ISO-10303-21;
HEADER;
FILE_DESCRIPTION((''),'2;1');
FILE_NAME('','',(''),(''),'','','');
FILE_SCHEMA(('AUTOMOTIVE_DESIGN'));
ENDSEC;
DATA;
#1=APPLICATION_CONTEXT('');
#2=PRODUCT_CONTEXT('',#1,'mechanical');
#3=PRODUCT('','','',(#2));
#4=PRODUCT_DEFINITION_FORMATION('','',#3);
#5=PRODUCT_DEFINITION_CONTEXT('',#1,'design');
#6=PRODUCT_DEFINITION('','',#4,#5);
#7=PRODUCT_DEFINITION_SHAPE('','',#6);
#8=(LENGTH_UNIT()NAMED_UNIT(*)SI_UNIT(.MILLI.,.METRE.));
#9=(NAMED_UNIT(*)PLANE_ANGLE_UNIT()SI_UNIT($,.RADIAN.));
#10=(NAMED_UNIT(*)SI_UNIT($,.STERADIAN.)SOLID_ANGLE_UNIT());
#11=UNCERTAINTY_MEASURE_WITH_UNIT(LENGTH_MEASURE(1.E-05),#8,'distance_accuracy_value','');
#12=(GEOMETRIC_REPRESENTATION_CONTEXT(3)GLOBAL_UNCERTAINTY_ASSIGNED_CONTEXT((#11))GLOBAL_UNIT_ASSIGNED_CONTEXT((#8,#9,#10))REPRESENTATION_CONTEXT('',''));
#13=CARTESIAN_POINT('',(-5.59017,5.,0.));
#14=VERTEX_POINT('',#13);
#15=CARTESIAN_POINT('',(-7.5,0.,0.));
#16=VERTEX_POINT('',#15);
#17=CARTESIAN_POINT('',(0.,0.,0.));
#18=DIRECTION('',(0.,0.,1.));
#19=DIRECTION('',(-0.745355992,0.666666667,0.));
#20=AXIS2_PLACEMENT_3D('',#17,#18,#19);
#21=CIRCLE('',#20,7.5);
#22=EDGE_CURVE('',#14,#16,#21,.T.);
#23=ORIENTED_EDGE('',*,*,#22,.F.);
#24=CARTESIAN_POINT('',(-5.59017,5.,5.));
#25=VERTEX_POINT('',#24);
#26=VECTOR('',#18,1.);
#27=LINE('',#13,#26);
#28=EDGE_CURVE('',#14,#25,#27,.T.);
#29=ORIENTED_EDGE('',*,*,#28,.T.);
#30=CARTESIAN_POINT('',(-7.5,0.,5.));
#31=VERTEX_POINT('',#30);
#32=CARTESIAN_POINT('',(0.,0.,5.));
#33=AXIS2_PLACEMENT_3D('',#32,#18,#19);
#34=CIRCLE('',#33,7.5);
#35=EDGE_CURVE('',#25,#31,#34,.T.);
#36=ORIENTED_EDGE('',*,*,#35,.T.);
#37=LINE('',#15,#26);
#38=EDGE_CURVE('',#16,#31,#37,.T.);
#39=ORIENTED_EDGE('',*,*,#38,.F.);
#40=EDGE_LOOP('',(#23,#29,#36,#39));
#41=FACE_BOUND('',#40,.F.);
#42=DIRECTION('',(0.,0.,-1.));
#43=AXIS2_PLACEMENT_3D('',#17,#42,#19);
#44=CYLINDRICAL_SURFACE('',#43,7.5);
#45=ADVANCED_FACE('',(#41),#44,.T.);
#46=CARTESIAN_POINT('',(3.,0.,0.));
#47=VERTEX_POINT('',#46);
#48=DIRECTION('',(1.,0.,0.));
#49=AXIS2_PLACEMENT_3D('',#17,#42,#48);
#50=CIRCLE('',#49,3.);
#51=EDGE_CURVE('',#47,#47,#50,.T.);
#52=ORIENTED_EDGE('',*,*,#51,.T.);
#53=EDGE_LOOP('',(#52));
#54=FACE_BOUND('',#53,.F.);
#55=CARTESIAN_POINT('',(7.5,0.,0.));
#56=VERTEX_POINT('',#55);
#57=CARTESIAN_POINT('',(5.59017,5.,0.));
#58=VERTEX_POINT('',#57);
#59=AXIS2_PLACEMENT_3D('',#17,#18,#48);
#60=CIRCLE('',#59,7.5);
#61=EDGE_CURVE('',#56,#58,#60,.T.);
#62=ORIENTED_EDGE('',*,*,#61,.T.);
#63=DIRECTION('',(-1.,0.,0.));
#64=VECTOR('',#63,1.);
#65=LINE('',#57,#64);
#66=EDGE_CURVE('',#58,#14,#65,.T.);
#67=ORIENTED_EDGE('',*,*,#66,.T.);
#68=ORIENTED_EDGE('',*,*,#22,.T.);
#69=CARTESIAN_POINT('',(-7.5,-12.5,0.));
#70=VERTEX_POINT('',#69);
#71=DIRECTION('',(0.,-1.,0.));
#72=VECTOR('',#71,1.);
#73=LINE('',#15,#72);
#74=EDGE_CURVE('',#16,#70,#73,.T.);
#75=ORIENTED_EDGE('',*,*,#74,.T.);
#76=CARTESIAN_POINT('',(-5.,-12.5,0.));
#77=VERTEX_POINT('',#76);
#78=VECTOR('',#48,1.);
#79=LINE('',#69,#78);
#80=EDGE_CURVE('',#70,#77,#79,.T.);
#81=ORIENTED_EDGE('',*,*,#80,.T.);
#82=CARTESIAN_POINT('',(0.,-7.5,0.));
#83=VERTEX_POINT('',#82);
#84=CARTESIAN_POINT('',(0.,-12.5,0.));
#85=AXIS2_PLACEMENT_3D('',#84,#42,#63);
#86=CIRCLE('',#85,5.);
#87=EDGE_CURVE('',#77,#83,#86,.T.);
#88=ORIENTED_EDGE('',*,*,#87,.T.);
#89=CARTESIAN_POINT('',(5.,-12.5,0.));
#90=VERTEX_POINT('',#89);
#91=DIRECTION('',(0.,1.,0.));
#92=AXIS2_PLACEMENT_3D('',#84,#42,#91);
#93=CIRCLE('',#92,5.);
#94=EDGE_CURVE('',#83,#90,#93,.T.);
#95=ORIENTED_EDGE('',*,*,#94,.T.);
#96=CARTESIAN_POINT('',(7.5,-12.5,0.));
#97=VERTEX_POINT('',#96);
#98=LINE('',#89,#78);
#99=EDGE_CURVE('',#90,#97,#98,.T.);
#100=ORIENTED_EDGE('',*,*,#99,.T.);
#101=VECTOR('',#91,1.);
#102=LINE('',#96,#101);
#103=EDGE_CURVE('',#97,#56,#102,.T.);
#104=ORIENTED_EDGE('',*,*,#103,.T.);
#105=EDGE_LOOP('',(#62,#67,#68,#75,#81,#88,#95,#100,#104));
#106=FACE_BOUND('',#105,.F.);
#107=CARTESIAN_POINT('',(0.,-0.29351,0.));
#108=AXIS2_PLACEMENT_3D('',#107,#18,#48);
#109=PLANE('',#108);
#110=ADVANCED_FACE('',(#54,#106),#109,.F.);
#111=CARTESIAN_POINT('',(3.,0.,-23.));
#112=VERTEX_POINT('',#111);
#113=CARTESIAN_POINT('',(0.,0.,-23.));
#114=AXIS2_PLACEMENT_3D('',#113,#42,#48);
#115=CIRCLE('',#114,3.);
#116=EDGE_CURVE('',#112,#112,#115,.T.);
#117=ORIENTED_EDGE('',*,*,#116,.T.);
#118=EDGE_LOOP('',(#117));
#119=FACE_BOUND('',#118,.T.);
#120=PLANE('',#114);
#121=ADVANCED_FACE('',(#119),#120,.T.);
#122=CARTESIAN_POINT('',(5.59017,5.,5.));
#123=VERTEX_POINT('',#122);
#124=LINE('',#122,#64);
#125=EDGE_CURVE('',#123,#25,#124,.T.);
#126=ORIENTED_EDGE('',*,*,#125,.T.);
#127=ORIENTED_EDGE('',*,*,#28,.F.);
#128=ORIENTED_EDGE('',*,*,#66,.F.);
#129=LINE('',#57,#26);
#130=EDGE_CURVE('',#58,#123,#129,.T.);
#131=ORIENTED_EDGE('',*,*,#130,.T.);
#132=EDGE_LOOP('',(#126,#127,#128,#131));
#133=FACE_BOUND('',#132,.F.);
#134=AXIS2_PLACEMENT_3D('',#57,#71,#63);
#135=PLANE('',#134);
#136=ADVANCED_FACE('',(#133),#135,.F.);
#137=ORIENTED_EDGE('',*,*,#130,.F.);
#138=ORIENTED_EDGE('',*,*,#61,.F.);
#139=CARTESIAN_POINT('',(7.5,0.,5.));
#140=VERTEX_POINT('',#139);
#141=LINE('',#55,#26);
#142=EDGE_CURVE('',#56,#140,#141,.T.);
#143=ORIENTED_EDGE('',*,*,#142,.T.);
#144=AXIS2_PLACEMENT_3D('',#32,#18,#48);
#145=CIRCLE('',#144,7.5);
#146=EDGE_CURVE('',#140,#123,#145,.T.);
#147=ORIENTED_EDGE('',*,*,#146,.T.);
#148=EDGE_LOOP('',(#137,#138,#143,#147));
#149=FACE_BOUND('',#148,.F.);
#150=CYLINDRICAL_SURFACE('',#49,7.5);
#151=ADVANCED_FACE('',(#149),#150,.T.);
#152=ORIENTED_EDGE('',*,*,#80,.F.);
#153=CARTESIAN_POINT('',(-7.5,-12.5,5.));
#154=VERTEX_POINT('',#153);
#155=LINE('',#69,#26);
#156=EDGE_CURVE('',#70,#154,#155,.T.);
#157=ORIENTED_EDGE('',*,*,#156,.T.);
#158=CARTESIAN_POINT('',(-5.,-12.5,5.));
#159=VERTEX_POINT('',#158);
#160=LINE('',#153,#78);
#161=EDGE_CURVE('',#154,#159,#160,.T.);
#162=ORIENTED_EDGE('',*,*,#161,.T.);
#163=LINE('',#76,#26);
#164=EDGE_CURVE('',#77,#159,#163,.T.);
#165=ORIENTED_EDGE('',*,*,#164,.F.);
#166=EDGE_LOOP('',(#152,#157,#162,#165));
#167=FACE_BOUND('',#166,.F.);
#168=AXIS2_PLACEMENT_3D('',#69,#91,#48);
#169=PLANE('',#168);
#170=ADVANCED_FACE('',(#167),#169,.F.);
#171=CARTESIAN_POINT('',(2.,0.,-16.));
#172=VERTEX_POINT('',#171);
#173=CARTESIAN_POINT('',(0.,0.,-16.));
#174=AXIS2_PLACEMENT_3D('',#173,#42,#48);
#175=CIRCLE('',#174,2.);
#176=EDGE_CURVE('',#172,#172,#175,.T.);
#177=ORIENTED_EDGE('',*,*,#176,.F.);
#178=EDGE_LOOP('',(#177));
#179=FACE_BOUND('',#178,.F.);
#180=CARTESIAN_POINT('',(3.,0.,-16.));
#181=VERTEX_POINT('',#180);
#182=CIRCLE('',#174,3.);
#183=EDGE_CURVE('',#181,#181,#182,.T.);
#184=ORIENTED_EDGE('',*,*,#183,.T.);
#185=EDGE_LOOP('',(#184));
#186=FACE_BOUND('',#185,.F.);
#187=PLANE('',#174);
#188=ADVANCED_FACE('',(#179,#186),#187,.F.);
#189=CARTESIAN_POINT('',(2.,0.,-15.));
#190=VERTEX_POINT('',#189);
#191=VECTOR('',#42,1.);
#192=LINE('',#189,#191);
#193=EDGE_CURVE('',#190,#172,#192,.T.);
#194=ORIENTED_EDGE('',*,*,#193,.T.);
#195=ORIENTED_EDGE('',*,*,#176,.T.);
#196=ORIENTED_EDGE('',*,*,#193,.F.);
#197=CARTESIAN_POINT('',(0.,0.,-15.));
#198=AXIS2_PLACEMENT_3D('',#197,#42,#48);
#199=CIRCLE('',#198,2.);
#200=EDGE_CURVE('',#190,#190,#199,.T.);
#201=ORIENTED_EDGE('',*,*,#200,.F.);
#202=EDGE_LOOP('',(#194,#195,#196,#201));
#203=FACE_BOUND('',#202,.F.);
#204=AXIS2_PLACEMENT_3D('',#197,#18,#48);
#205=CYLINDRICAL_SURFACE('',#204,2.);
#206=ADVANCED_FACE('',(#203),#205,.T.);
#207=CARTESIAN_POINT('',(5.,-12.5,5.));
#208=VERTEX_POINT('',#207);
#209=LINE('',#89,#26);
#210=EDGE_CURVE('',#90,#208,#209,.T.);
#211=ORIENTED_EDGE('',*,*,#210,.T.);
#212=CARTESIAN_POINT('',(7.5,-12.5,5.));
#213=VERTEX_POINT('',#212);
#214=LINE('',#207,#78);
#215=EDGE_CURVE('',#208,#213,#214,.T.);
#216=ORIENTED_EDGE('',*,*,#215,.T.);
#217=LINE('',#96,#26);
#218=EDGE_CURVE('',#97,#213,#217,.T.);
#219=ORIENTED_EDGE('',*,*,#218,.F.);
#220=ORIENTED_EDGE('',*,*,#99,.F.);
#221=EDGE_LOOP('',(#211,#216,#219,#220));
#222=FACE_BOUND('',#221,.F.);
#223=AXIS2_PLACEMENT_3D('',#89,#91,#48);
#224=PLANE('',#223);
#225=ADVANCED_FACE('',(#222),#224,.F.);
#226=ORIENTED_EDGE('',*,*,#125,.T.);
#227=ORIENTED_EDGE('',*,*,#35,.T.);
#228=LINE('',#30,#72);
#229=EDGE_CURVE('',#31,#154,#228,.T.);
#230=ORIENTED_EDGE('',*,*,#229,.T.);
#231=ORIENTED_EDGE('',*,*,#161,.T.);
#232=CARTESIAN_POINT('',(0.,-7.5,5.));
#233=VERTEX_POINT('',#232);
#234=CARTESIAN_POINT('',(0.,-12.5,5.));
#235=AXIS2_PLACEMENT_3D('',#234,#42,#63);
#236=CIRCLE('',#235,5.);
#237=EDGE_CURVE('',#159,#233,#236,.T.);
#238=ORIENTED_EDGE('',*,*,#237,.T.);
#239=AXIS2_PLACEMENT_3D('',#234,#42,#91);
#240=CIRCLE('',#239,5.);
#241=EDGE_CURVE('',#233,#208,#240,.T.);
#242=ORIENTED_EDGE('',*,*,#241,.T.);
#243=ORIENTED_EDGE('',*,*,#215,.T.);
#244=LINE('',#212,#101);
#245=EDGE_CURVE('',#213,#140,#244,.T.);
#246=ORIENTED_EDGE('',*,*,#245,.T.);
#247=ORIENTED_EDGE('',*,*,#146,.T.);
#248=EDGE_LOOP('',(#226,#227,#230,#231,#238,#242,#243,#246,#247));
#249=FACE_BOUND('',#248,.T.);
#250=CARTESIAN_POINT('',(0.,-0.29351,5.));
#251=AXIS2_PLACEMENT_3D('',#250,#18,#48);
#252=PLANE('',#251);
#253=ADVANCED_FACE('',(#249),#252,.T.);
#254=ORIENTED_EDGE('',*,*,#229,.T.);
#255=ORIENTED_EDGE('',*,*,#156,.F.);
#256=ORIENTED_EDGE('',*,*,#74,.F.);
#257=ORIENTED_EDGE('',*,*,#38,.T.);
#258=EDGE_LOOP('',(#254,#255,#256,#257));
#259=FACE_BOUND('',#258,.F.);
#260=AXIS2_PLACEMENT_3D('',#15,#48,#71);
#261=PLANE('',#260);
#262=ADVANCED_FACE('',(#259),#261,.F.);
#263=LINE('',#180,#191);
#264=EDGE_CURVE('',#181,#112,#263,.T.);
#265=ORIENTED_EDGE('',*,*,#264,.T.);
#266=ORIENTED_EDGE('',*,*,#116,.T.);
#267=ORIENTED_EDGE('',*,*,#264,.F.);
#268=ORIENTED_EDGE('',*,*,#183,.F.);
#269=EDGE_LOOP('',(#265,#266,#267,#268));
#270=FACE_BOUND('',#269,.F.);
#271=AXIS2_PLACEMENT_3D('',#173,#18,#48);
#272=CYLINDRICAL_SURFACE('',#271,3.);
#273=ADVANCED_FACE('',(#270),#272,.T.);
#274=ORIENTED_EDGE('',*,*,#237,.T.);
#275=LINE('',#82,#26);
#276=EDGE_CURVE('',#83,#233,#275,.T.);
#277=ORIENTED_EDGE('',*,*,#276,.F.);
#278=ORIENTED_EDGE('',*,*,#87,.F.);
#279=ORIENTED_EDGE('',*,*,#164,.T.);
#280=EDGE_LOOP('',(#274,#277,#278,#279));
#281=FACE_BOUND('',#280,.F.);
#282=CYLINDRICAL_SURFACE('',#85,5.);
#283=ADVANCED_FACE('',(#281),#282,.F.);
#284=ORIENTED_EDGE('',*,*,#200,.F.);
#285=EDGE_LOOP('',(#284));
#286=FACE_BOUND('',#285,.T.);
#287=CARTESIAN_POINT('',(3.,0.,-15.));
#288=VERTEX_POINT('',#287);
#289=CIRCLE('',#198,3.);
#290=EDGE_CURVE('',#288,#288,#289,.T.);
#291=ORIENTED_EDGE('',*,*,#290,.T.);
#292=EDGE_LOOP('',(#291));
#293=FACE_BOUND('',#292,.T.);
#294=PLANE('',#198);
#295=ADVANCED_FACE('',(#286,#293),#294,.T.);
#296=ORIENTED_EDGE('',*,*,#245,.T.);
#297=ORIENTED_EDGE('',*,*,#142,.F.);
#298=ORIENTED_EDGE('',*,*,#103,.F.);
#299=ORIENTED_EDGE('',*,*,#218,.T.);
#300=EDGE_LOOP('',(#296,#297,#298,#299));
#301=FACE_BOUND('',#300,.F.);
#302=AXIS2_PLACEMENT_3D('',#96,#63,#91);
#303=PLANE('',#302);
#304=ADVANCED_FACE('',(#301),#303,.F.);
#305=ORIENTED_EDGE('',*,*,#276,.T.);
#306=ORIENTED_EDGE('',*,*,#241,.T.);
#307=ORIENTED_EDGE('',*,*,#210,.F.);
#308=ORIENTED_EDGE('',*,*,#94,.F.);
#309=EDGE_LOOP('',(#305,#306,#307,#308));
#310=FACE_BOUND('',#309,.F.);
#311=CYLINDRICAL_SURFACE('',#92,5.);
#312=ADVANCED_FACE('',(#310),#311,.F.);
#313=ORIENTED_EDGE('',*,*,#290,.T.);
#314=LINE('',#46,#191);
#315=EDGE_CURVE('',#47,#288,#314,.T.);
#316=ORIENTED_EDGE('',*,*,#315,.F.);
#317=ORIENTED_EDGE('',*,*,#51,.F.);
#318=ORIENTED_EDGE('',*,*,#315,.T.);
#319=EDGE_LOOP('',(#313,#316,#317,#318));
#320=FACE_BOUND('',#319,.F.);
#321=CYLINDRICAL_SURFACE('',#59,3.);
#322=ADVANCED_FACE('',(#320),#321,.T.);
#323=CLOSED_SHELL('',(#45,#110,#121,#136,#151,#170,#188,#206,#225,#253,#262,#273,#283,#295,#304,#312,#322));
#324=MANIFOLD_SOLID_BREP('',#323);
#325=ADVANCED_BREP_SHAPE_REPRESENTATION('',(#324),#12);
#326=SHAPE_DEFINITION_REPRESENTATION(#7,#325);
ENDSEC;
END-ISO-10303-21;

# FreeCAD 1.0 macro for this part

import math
import FreeCAD as App
import Part
import Sketcher
from FreeCAD import Vector

doc = App.newDocument("Part")
params = doc.addObject("Spreadsheet::Sheet", "Params")
for row, (alias, value) in enumerate([
    ("sketch1_radius", "5 mm"),
    ("sketch1_radius2", "7.5 mm"),
    ("sketch1_height", "12.5 mm"),
    ("pad1_length", "5 mm"),
    ("sketch2_diameter", "6 mm"),
    ("pad2_length", "15 mm"),
    ("sketch3_diameter", "4 mm"),
    ("pad3_length", "1 mm"),
    ("sketch4_diameter", "6 mm"),
    ("pad4_length", "7 mm"),
], start=1):
    params.set(f"A{row}", alias)
    params.set(f"B{row}", "=" + value)
    params.setAlias(f"B{row}", alias)

body = doc.addObject("PartDesign::Body", "Body")

# Sketch on XY plane
sketch1 = doc.addObject("Sketcher::SketchObject", "Sketch")
body.addObject(sketch1)
sketch1.AttachmentSupport = (doc.XY_Plane, [""])
sketch1.MapMode = "FlatFace"
sketch1.addGeometry([
    Part.ArcOfCircle(Part.Circle(Vector(0, 0, 0), Vector(0, 0, 1), 7.5), math.radians(0), math.radians(42)),  # 0
    Part.LineSegment(Vector(5.6, 5, 0), Vector(-5.6, 5, 0)),  # 1
    Part.ArcOfCircle(Part.Circle(Vector(0, 0, 0), Vector(0, 0, 1), 7.5), math.radians(138), math.radians(180)),  # 2
    Part.LineSegment(Vector(-7.5, 0, 0), Vector(-7.5, -12.5, 0)),  # 3
    Part.LineSegment(Vector(-7.5, -12.5, 0), Vector(-5, -12.5, 0)),  # 4
    Part.ArcOfCircle(Part.Circle(Vector(0, -12.5, 0), Vector(0, 0, 1), 5), math.radians(90), math.radians(180)),  # 5
    Part.ArcOfCircle(Part.Circle(Vector(0, -12.5, 0), Vector(0, 0, 1), 5), math.radians(0), math.radians(90)),  # 6
    Part.LineSegment(Vector(5, -12.5, 0), Vector(7.5, -12.5, 0)),  # 7
    Part.LineSegment(Vector(7.5, -12.5, 0), Vector(7.5, 0, 0)),  # 8
], False)
sketch1.addConstraint([
    Sketcher.Constraint("Coincident", 0, 2, 1, 1),
    Sketcher.Constraint("Coincident", 1, 2, 2, 1),
    Sketcher.Constraint("Tangent", 2, 2, 3, 1),
    Sketcher.Constraint("Coincident", 3, 2, 4, 1),
    Sketcher.Constraint("Coincident", 4, 2, 5, 2),
    Sketcher.Constraint("Tangent", 5, 1, 6, 2),
    Sketcher.Constraint("Coincident", 6, 1, 7, 1),
    Sketcher.Constraint("Coincident", 7, 2, 8, 1),
    Sketcher.Constraint("Tangent", 8, 2, 0, 1),
    Sketcher.Constraint("Horizontal", 1),
    Sketcher.Constraint("Vertical", 3),
    Sketcher.Constraint("Horizontal", 4),
    Sketcher.Constraint("Horizontal", 7),
    Sketcher.Constraint("Vertical", 8),
    Sketcher.Constraint("Coincident", 0, 3, -1, 1),
    Sketcher.Constraint("Coincident", 2, 3, -1, 1),
    Sketcher.Constraint("Equal", 0, 2),
    Sketcher.Constraint("Equal", 5, 6),
    Sketcher.Constraint("Symmetric", 4, 2, 6, 1, -2),
    Sketcher.Constraint("PointOnObject", 5, 1, -2),
    Sketcher.Constraint("Horizontal", 6, 3, 3, 2),
    Sketcher.Constraint("Radius", 5, 5.0),
    Sketcher.Constraint("Radius", 0, 7.5),
    Sketcher.Constraint("DistanceY", 3, 2, 3, 1, 12.5),
    Sketcher.Constraint("DistanceY", -1, 1, 0, 2, 5.0),
])
sketch1.setExpression("Constraints[21]", "Params.sketch1_radius")
sketch1.setExpression("Constraints[22]", "Params.sketch1_radius2")
sketch1.setExpression("Constraints[23]", "Params.sketch1_height")
pad1 = doc.addObject("PartDesign::Pad", "Pad")
body.addObject(pad1)
pad1.Profile = sketch1
pad1.setExpression("Length", "Params.pad1_length")

# Sketch on XY plane
sketch2 = doc.addObject("Sketcher::SketchObject", "Sketch001")
body.addObject(sketch2)
sketch2.AttachmentSupport = (doc.XY_Plane, [""])
sketch2.MapMode = "FlatFace"
sketch2.addGeometry(Part.Circle(Vector(0, 0, 0), Vector(0, 0, 1), 3), False)
sketch2.addConstraint([
    Sketcher.Constraint("Coincident", 0, 3, -1, 1),
    Sketcher.Constraint("Diameter", 0, 6.0),
])
sketch2.setExpression("Constraints[1]", "Params.sketch2_diameter")
pad2 = doc.addObject("PartDesign::Pad", "Pad001")
body.addObject(pad2)
pad2.Profile = sketch2
pad2.setExpression("Length", "Params.pad2_length")
pad2.Reversed = True

# Sketch on XY plane
sketch3 = doc.addObject("Sketcher::SketchObject", "Sketch002")
body.addObject(sketch3)
sketch3.AttachmentSupport = (doc.XY_Plane, [""])
sketch3.MapMode = "FlatFace"
sketch3.AttachmentOffset = App.Placement(Vector(0, 0, -15), App.Rotation())
sketch3.addGeometry(Part.Circle(Vector(0, 0, 0), Vector(0, 0, 1), 2), False)
sketch3.addConstraint([
    Sketcher.Constraint("Coincident", 0, 3, -1, 1),
    Sketcher.Constraint("Diameter", 0, 4.0),
])
sketch3.setExpression("Constraints[1]", "Params.sketch3_diameter")
pad3 = doc.addObject("PartDesign::Pad", "Pad002")
body.addObject(pad3)
pad3.Profile = sketch3
pad3.setExpression("Length", "Params.pad3_length")
pad3.Reversed = True

# Sketch on XY plane
sketch4 = doc.addObject("Sketcher::SketchObject", "Sketch003")
body.addObject(sketch4)
sketch4.AttachmentSupport = (doc.XY_Plane, [""])
sketch4.MapMode = "FlatFace"
sketch4.AttachmentOffset = App.Placement(Vector(0, 0, -16), App.Rotation())
sketch4.addGeometry(Part.Circle(Vector(0, 0, 0), Vector(0, 0, 1), 3), False)
sketch4.addConstraint([
    Sketcher.Constraint("Coincident", 0, 3, -1, 1),
    Sketcher.Constraint("Diameter", 0, 6.0),
])
sketch4.setExpression("Constraints[1]", "Params.sketch4_diameter")
pad4 = doc.addObject("PartDesign::Pad", "Pad003")
body.addObject(pad4)
pad4.Profile = sketch4
pad4.setExpression("Length", "Params.pad4_length")
pad4.Reversed = True

doc.recompute()
